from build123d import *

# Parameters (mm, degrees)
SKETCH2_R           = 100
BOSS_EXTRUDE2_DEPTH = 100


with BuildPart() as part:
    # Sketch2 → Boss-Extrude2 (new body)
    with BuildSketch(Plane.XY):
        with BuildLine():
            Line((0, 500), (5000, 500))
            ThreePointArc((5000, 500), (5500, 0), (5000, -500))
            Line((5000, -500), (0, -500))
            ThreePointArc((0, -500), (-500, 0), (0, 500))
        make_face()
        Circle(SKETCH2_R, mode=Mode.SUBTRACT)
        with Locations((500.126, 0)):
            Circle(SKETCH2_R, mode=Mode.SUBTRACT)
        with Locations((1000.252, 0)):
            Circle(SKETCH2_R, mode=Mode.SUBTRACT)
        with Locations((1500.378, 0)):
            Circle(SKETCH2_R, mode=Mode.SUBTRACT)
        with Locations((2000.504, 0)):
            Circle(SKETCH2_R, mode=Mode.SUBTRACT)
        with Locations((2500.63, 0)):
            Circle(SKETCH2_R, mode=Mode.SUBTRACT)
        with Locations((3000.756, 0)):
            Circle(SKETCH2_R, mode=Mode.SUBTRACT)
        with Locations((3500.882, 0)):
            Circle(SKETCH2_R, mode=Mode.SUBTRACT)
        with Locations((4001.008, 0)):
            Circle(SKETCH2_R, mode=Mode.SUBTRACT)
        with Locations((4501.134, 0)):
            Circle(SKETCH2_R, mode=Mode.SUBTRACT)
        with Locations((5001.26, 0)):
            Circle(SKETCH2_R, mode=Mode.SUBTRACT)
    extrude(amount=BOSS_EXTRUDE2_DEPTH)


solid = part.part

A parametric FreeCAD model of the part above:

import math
import FreeCAD as App
import Part
import Sketcher

V = App.Vector
Q = App.Units.Quantity

doc = App.newDocument("Part")
body = doc.addObject("PartDesign::Body", "Body")

# Sketch on XY plane
sketch1 = doc.addObject("Sketcher::SketchObject", "Sketch")
body.addObject(sketch1)
sketch1.AttachmentSupport = (doc.XY_Plane, [""])
sketch1.MapMode = "FlatFace"
sketch1.addGeometry([
    Part.LineSegment(V(5000, 500, 0), V(0, 500, 0)),  # 0
    Part.ArcOfCircle(Part.Circle(V(0, 0, 0), V(0, 0, 1), 500), math.radians(90), math.radians(270)),  # 1
    Part.LineSegment(V(0, -500, 0), V(5000, -500, 0)),  # 2
    Part.ArcOfCircle(Part.Circle(V(5000, 0, 0), V(0, 0, 1), 500), math.radians(-90), math.radians(90)),  # 3
    Part.Circle(V(5001, 0, 0), V(0, 0, 1), 100),  # 4
    Part.Circle(V(4501, 0, 0), V(0, 0, 1), 100),  # 5
    Part.Circle(V(4001, 0, 0), V(0, 0, 1), 100),  # 6
    Part.Circle(V(3501, 0, 0), V(0, 0, 1), 100),  # 7
    Part.Circle(V(3001, 0, 0), V(0, 0, 1), 100),  # 8
    Part.Circle(V(2501, 0, 0), V(0, 0, 1), 100),  # 9
    Part.Circle(V(2001, 0, 0), V(0, 0, 1), 100),  # 10
    Part.Circle(V(1500, 0, 0), V(0, 0, 1), 100),  # 11
    Part.Circle(V(1000, 0, 0), V(0, 0, 1), 100),  # 12
    Part.Circle(V(500, 0, 0), V(0, 0, 1), 100),  # 13
    Part.Circle(V(0, 0, 0), V(0, 0, 1), 100),  # 14
], False)
sketch1.addConstraint([
    Sketcher.Constraint("Tangent", 0, 2, 1, 1),
    Sketcher.Constraint("Tangent", 1, 2, 2, 1),
    Sketcher.Constraint("Tangent", 2, 2, 3, 1),
    Sketcher.Constraint("Tangent", 3, 2, 0, 1),
    Sketcher.Constraint("Horizontal", 0),
    Sketcher.Constraint("Horizontal", 2),
    Sketcher.Constraint("Coincident", 1, 3, -1, 1),
    Sketcher.Constraint("Coincident", 14, 3, -1, 1),
    Sketcher.Constraint("Equal", 4, 5),
    Sketcher.Constraint("Equal", 5, 6),
    Sketcher.Constraint("Equal", 6, 7),
    Sketcher.Constraint("Equal", 7, 8),
    Sketcher.Constraint("Equal", 8, 9),
    Sketcher.Constraint("Equal", 9, 10),
    Sketcher.Constraint("Equal", 10, 11),
    Sketcher.Constraint("Equal", 11, 12),
    Sketcher.Constraint("Equal", 12, 13),
    Sketcher.Constraint("Equal", 13, 14),
    Sketcher.Constraint("PointOnObject", 4, 3, -1),
    Sketcher.Constraint("PointOnObject", 5, 3, -1),
    Sketcher.Constraint("PointOnObject", 6, 3, -1),
    Sketcher.Constraint("PointOnObject", 7, 3, -1),
    Sketcher.Constraint("PointOnObject", 8, 3, -1),
    Sketcher.Constraint("PointOnObject", 9, 3, -1),
    Sketcher.Constraint("PointOnObject", 10, 3, -1),
    Sketcher.Constraint("PointOnObject", 11, 3, -1),
    Sketcher.Constraint("PointOnObject", 12, 3, -1),
    Sketcher.Constraint("PointOnObject", 13, 3, -1),
    Sketcher.Constraint("Diameter", 4, Q("200 mm")),
    Sketcher.Constraint("Radius", 1, Q("500 mm")),
    Sketcher.Constraint("DistanceX", 0, 2, 0, 1, Q("5000 mm")),
    Sketcher.Constraint("DistanceX", -1, 1, 4, 3, Q("5001.26 mm")),
    Sketcher.Constraint("DistanceX", -1, 1, 9, 3, Q("2500.63 mm")),
    Sketcher.Constraint("DistanceX", -1, 1, 5, 3, Q("4501.134 mm")),
    Sketcher.Constraint("DistanceX", -1, 1, 6, 3, Q("4001.008 mm")),
    Sketcher.Constraint("DistanceX", -1, 1, 7, 3, Q("3500.882 mm")),
    Sketcher.Constraint("DistanceX", -1, 1, 8, 3, Q("3000.756 mm")),
    Sketcher.Constraint("DistanceX", -1, 1, 10, 3, Q("2000.504 mm")),
    Sketcher.Constraint("DistanceX", -1, 1, 11, 3, Q("1500.378 mm")),
    Sketcher.Constraint("DistanceX", -1, 1, 12, 3, Q("1000.252 mm")),
    Sketcher.Constraint("DistanceX", -1, 1, 13, 3, Q("500.126 mm")),
])
pad1 = doc.addObject("PartDesign::Pad", "Pad")
body.addObject(pad1)
pad1.Profile = sketch1
pad1.Length = 100

doc.recompute()
